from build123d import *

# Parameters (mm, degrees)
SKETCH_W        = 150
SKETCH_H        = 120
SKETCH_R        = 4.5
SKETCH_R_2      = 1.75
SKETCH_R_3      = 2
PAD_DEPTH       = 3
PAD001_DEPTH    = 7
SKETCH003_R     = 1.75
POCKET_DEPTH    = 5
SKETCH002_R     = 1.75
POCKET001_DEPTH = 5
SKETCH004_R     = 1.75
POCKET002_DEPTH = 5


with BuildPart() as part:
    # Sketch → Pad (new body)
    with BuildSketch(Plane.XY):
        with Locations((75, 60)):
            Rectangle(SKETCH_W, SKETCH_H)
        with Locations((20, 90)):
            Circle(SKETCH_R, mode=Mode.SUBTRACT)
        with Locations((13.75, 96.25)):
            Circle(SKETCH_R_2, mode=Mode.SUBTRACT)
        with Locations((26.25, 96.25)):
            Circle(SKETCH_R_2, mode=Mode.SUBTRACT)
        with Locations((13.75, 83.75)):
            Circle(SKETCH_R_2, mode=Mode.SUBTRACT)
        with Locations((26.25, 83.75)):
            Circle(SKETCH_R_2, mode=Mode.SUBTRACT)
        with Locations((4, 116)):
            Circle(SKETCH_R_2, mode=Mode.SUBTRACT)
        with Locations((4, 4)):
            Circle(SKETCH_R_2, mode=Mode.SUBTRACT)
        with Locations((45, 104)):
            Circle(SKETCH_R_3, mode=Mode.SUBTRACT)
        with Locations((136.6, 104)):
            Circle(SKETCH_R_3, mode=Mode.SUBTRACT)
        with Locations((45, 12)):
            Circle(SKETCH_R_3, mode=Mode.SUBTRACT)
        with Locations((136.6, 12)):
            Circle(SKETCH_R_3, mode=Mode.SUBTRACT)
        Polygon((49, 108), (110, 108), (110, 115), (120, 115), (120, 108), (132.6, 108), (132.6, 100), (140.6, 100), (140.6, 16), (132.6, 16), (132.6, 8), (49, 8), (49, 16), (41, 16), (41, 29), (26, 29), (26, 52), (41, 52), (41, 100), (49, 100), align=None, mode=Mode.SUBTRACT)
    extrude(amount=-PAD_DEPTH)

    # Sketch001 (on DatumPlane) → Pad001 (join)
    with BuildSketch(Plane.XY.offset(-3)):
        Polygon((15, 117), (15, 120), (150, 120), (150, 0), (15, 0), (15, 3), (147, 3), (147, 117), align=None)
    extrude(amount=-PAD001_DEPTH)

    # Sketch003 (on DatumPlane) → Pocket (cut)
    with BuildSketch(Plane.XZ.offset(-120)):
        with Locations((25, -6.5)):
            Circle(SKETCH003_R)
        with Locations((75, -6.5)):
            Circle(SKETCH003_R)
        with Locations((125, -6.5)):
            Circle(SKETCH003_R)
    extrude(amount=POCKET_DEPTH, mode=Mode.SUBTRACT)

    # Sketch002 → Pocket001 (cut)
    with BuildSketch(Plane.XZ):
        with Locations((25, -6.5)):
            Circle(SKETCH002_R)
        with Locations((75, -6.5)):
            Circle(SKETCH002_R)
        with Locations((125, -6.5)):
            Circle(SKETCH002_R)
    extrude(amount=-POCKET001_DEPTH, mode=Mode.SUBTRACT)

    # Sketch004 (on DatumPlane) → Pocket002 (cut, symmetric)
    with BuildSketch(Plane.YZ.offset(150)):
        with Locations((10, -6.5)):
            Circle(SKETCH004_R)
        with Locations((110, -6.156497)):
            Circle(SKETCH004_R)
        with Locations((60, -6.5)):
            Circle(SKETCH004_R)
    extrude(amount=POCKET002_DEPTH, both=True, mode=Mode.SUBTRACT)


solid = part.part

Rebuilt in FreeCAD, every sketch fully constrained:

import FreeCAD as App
import Part
import Sketcher

doc = App.newDocument("Part")
params = doc.addObject("Spreadsheet::Sheet", "Params")
for row, (alias, value) in enumerate([
    ("sketch1_diameter", "4 mm"),
    ("sketch1_diameter2", "9 mm"),
    ("sketch1_diameter3", "3.5 mm"),
    ("sketch1_width", "150 mm"),
    ("sketch1_width2", "61 mm"),
    ("pad1_length", "3 mm"),
    ("sketch2_width", "132 mm"),
    ("sketch2_width2", "135 mm"),
    ("sketch2_height", "3 mm"),
    ("sketch2_height2", "114 mm"),
    ("pad2_length", "7 mm"),
    ("sketch3_diameter", "3.5 mm"),
    ("pocket1_length", "5 mm"),
    ("sketch4_diameter", "3.5 mm"),
    ("pocket2_length", "5 mm"),
    ("sketch5_diameter", "3.5 mm"),
    ("pocket3_length", "10 mm"),
], start=1):
    params.set(f"A{row}", alias)
    params.set(f"B{row}", "=" + value)
    params.setAlias(f"B{row}", alias)

body = doc.addObject("PartDesign::Body", "Body")

# Sketch on XY plane
sketch1 = doc.addObject("Sketcher::SketchObject", "Sketch")
body.addObject(sketch1)
sketch1.AttachmentSupport = (doc.XY_Plane, [""])
sketch1.MapMode = "FlatFace"
sketch1.addGeometry(Part.LineSegment(App.Vector(0, 120, 0), App.Vector(0, 0, 0)), False)
sketch1.addGeometry(Part.LineSegment(App.Vector(0, 0, 0), App.Vector(150, 0, 0)), False)
sketch1.addGeometry(Part.LineSegment(App.Vector(150, 0, 0), App.Vector(150, 120, 0)), False)
sketch1.addGeometry(Part.LineSegment(App.Vector(150, 120, 0), App.Vector(0, 120, 0)), False)
sketch1.addGeometry(Part.Circle(App.Vector(4, 4, 0), App.Vector(0, 0, 1), 1.8), False)
sketch1.addGeometry(Part.Circle(App.Vector(45, 12, 0), App.Vector(0, 0, 1), 2), False)
sketch1.addGeometry(Part.Circle(App.Vector(136.6, 12, 0), App.Vector(0, 0, 1), 2), False)
sketch1.addGeometry(Part.Circle(App.Vector(13.8, 83.8, 0), App.Vector(0, 0, 1), 1.8), False)
sketch1.addGeometry(Part.Circle(App.Vector(26.2, 83.8, 0), App.Vector(0, 0, 1), 1.8), False)
sketch1.addGeometry(Part.Circle(App.Vector(13.8, 96.2, 0), App.Vector(0, 0, 1), 1.8), False)
sketch1.addGeometry(Part.Circle(App.Vector(20, 90, 0), App.Vector(0, 0, 1), 4.5), False)
sketch1.addGeometry(Part.Circle(App.Vector(26.2, 96.2, 0), App.Vector(0, 0, 1), 1.8), False)
sketch1.addGeometry(Part.Circle(App.Vector(4, 116, 0), App.Vector(0, 0, 1), 1.8), False)
sketch1.addGeometry(Part.Circle(App.Vector(45, 104, 0), App.Vector(0, 0, 1), 2), False)
sketch1.addGeometry(Part.LineSegment(App.Vector(49, 100, 0), App.Vector(49, 108, 0)), False)
sketch1.addGeometry(Part.LineSegment(App.Vector(49, 108, 0), App.Vector(110, 108, 0)), False)
sketch1.addGeometry(Part.LineSegment(App.Vector(110, 108, 0), App.Vector(110, 115, 0)), False)
sketch1.addGeometry(Part.LineSegment(App.Vector(110, 115, 0), App.Vector(120, 115, 0)), False)
sketch1.addGeometry(Part.LineSegment(App.Vector(120, 115, 0), App.Vector(120, 108, 0)), False)
sketch1.addGeometry(Part.LineSegment(App.Vector(120, 108, 0), App.Vector(132.6, 108, 0)), False)
sketch1.addGeometry(Part.LineSegment(App.Vector(132.6, 108, 0), App.Vector(132.6, 100, 0)), False)
sketch1.addGeometry(Part.LineSegment(App.Vector(132.6, 100, 0), App.Vector(140.6, 100, 0)), False)
sketch1.addGeometry(Part.LineSegment(App.Vector(140.6, 100, 0), App.Vector(140.6, 16, 0)), False)
sketch1.addGeometry(Part.LineSegment(App.Vector(140.6, 16, 0), App.Vector(132.6, 16, 0)), False)
sketch1.addGeometry(Part.LineSegment(App.Vector(132.6, 16, 0), App.Vector(132.6, 8, 0)), False)
sketch1.addGeometry(Part.LineSegment(App.Vector(132.6, 8, 0), App.Vector(49, 8, 0)), False)
sketch1.addGeometry(Part.LineSegment(App.Vector(49, 8, 0), App.Vector(49, 16, 0)), False)
sketch1.addGeometry(Part.LineSegment(App.Vector(49, 16, 0), App.Vector(41, 16, 0)), False)
sketch1.addGeometry(Part.LineSegment(App.Vector(41, 16, 0), App.Vector(41, 29, 0)), False)
sketch1.addGeometry(Part.LineSegment(App.Vector(41, 29, 0), App.Vector(26, 29, 0)), False)
sketch1.addGeometry(Part.LineSegment(App.Vector(26, 29, 0), App.Vector(26, 52, 0)), False)
sketch1.addGeometry(Part.LineSegment(App.Vector(26, 52, 0), App.Vector(41, 52, 0)), False)
sketch1.addGeometry(Part.LineSegment(App.Vector(41, 52, 0), App.Vector(41, 100, 0)), False)
sketch1.addGeometry(Part.LineSegment(App.Vector(41, 100, 0), App.Vector(49, 100, 0)), False)
sketch1.addGeometry(Part.Circle(App.Vector(136.6, 104, 0), App.Vector(0, 0, 1), 2), False)
sketch1.addConstraint(Sketcher.Constraint("Coincident", 0, 2, 1, 1))
sketch1.addConstraint(Sketcher.Constraint("Coincident", 1, 2, 2, 1))
sketch1.addConstraint(Sketcher.Constraint("Coincident", 2, 2, 3, 1))
sketch1.addConstraint(Sketcher.Constraint("Coincident", 3, 2, 0, 1))
sketch1.addConstraint(Sketcher.Constraint("Coincident", 14, 2, 15, 1))
sketch1.addConstraint(Sketcher.Constraint("Coincident", 15, 2, 16, 1))
sketch1.addConstraint(Sketcher.Constraint("Coincident", 16, 2, 17, 1))
sketch1.addConstraint(Sketcher.Constraint("Coincident", 17, 2, 18, 1))
sketch1.addConstraint(Sketcher.Constraint("Coincident", 18, 2, 19, 1))
sketch1.addConstraint(Sketcher.Constraint("Coincident", 19, 2, 20, 1))
sketch1.addConstraint(Sketcher.Constraint("Coincident", 20, 2, 21, 1))
sketch1.addConstraint(Sketcher.Constraint("Coincident", 21, 2, 22, 1))
sketch1.addConstraint(Sketcher.Constraint("Coincident", 22, 2, 23, 1))
sketch1.addConstraint(Sketcher.Constraint("Coincident", 23, 2, 24, 1))
sketch1.addConstraint(Sketcher.Constraint("Coincident", 24, 2, 25, 1))
sketch1.addConstraint(Sketcher.Constraint("Coincident", 25, 2, 26, 1))
sketch1.addConstraint(Sketcher.Constraint("Coincident", 26, 2, 27, 1))
sketch1.addConstraint(Sketcher.Constraint("Coincident", 27, 2, 28, 1))
sketch1.addConstraint(Sketcher.Constraint("Coincident", 28, 2, 29, 1))
sketch1.addConstraint(Sketcher.Constraint("Coincident", 29, 2, 30, 1))
sketch1.addConstraint(Sketcher.Constraint("Coincident", 30, 2, 31, 1))
sketch1.addConstraint(Sketcher.Constraint("Coincident", 31, 2, 32, 1))
sketch1.addConstraint(Sketcher.Constraint("Coincident", 32, 2, 33, 1))
sketch1.addConstraint(Sketcher.Constraint("Coincident", 33, 2, 14, 1))
sketch1.addConstraint(Sketcher.Constraint("Vertical", 0))
sketch1.addConstraint(Sketcher.Constraint("Horizontal", 1))
sketch1.addConstraint(Sketcher.Constraint("Vertical", 2))
sketch1.addConstraint(Sketcher.Constraint("Horizontal", 3))
sketch1.addConstraint(Sketcher.Constraint("Vertical", 14))
sketch1.addConstraint(Sketcher.Constraint("Horizontal", 15))
sketch1.addConstraint(Sketcher.Constraint("Vertical", 16))
sketch1.addConstraint(Sketcher.Constraint("Horizontal", 17))
sketch1.addConstraint(Sketcher.Constraint("Vertical", 18))
sketch1.addConstraint(Sketcher.Constraint("Horizontal", 19))
sketch1.addConstraint(Sketcher.Constraint("Vertical", 20))
sketch1.addConstraint(Sketcher.Constraint("Horizontal", 21))
sketch1.addConstraint(Sketcher.Constraint("Vertical", 22))
sketch1.addConstraint(Sketcher.Constraint("Horizontal", 23))
sketch1.addConstraint(Sketcher.Constraint("Vertical", 24))
sketch1.addConstraint(Sketcher.Constraint("Horizontal", 25))
sketch1.addConstraint(Sketcher.Constraint("Vertical", 26))
sketch1.addConstraint(Sketcher.Constraint("Horizontal", 27))
sketch1.addConstraint(Sketcher.Constraint("Vertical", 28))
sketch1.addConstraint(Sketcher.Constraint("Horizontal", 29))
sketch1.addConstraint(Sketcher.Constraint("Vertical", 30))
sketch1.addConstraint(Sketcher.Constraint("Horizontal", 31))
sketch1.addConstraint(Sketcher.Constraint("Vertical", 32))
sketch1.addConstraint(Sketcher.Constraint("Horizontal", 33))
sketch1.addConstraint(Sketcher.Constraint("Coincident", 0, 2, -1, 1))
sketch1.addConstraint(Sketcher.Constraint("Equal", 5, 6))
sketch1.addConstraint(Sketcher.Constraint("Equal", 4, 7))
sketch1.addConstraint(Sketcher.Constraint("Equal", 7, 8))
sketch1.addConstraint(Sketcher.Constraint("Equal", 8, 9))
sketch1.addConstraint(Sketcher.Constraint("Equal", 9, 11))
sketch1.addConstraint(Sketcher.Constraint("Equal", 11, 12))
sketch1.addConstraint(Sketcher.Constraint("Equal", 6, 13))
sketch1.addConstraint(Sketcher.Constraint("Equal", 13, 34))
sketch1.addConstraint(Sketcher.Constraint("Horizontal", 5, 3, 6, 3))
sketch1.addConstraint(Sketcher.Constraint("Horizontal", 7, 3, 8, 3))
sketch1.addConstraint(Sketcher.Constraint("Horizontal", 9, 3, 11, 3))
sketch1.addConstraint(Sketcher.Constraint("Horizontal", 13, 3, 34, 3))
sketch1.addConstraint(Sketcher.Constraint("Horizontal", 15, 2, 18, 2))
sketch1.addConstraint(Sketcher.Constraint("Horizontal", 23, 2, 26, 2))
sketch1.addConstraint(Sketcher.Constraint("Horizontal", 21, 2, 32, 2))
sketch1.addConstraint(Sketcher.Constraint("Vertical", 7, 3, 9, 3))
sketch1.addConstraint(Sketcher.Constraint("Vertical", 8, 3, 11, 3))
sketch1.addConstraint(Sketcher.Constraint("Vertical", 4, 3, 12, 3))
sketch1.addConstraint(Sketcher.Constraint("Vertical", 5, 3, 13, 3))
sketch1.addConstraint(Sketcher.Constraint("Vertical", 6, 3, 34, 3))
sketch1.addConstraint(Sketcher.Constraint("Vertical", 20, 2, 23, 2))
sketch1.addConstraint(Sketcher.Constraint("Vertical", 14, 2, 25, 2))
sketch1.addConstraint(Sketcher.Constraint("Vertical", 28, 2, 31, 2))
sketch1.addConstraint(Sketcher.Constraint("Equal", 23, 27))
sketch1.addConstraint(Sketcher.Constraint("Equal", 33, 14))
sketch1.addConstraint(Sketcher.Constraint("Equal", 20, 24))
sketch1.addConstraint(Sketcher.Constraint("Diameter", 5, 4.0))
sketch1.addConstraint(Sketcher.Constraint("Diameter", 10, 9.0))
sketch1.addConstraint(Sketcher.Constraint("Diameter", 4, 3.5))
sketch1.addConstraint(Sketcher.Constraint("DistanceX", 1, 1, 1, 2, 150.0))
sketch1.addConstraint(Sketcher.Constraint("DistanceX", 15, 1, 15, 2, 61.0))
sketch1.addConstraint(Sketcher.Constraint("DistanceX", 17, 1, 17, 2, 10.0))
sketch1.addConstraint(Sketcher.Constraint("DistanceX", 21, 1, 21, 2, 8.0))
sketch1.addConstraint(Sketcher.Constraint("DistanceX", 29, 2, 29, 1, 15.0))
sketch1.addConstraint(Sketcher.Constraint("DistanceY", 0, 2, 0, 1, 120.0))
sketch1.addConstraint(Sketcher.Constraint("DistanceY", 16, 1, 16, 2, 7.0))
sketch1.addConstraint(Sketcher.Constraint("DistanceY", 22, 2, 22, 1, 84.0))
sketch1.addConstraint(Sketcher.Constraint("DistanceY", 28, 1, 28, 2, 13.0))
sketch1.addConstraint(Sketcher.Constraint("DistanceY", 30, 1, 30, 2, 23.0))
sketch1.addConstraint(Sketcher.Constraint("DistanceX", 19, 1, 19, 2, 12.6))
sketch1.addConstraint(Sketcher.Constraint("DistanceX", -1, 1, 4, 3, 4.0))
sketch1.addConstraint(Sketcher.Constraint("DistanceY", -1, 1, 4, 3, 4.0))
sketch1.addConstraint(Sketcher.Constraint("DistanceX", -1, 1, 5, 3, 45.0))
sketch1.addConstraint(Sketcher.Constraint("DistanceY", -1, 1, 5, 3, 12.0))
sketch1.addConstraint(Sketcher.Constraint("DistanceX", -1, 1, 10, 3, 20.0))
sketch1.addConstraint(Sketcher.Constraint("DistanceY", -1, 1, 10, 3, 90.0))
sketch1.addConstraint(Sketcher.Constraint("DistanceY", -1, 1, 12, 3, 116.0))
sketch1.addConstraint(Sketcher.Constraint("DistanceY", -1, 1, 13, 3, 104.0))
sketch1.addConstraint(Sketcher.Constraint("DistanceX", -1, 1, 14, 2, 49.0))
sketch1.addConstraint(Sketcher.Constraint("DistanceY", -1, 1, 14, 2, 108.0))
sketch1.addConstraint(Sketcher.Constraint("DistanceX", 19, 2, 34, 3, 4.0))
sketch1.addConstraint(Sketcher.Constraint("DistanceX", 7, 3, 8, 3, 12.5))
sketch1.addConstraint(Sketcher.Constraint("DistanceY", 7, 3, 9, 3, 12.5))
sketch1.addConstraint(Sketcher.Constraint("DistanceX", -1, 1, 7, 3, 13.75))
sketch1.addConstraint(Sketcher.Constraint("DistanceY", -1, 1, 7, 3, 83.75))
sketch1.setExpression("Constraints[75]", "Params.sketch1_diameter")
sketch1.setExpression("Constraints[76]", "Params.sketch1_diameter2")
sketch1.setExpression("Constraints[77]", "Params.sketch1_diameter3")
sketch1.setExpression("Constraints[78]", "Params.sketch1_width")
sketch1.setExpression("Constraints[79]", "Params.sketch1_width2")
pad1 = doc.addObject("PartDesign::Pad", "Pad")
body.addObject(pad1)
pad1.Profile = sketch1
pad1.setExpression("Length", "Params.pad1_length")
pad1.Reversed = True

# Sketch on XY plane
sketch2 = doc.addObject("Sketcher::SketchObject", "Sketch001")
body.addObject(sketch2)
sketch2.AttachmentSupport = (doc.XY_Plane, [""])
sketch2.MapMode = "FlatFace"
sketch2.AttachmentOffset = App.Placement(App.Vector(0, 0, -3), App.Rotation())
sketch2.addGeometry(Part.LineSegment(App.Vector(15, 120, 0), App.Vector(15, 117, 0)), False)
sketch2.addGeometry(Part.LineSegment(App.Vector(15, 117, 0), App.Vector(147, 117, 0)), False)
sketch2.addGeometry(Part.LineSegment(App.Vector(147, 117, 0), App.Vector(147, 3, 0)), False)
sketch2.addGeometry(Part.LineSegment(App.Vector(147, 3, 0), App.Vector(15, 3, 0)), False)
sketch2.addGeometry(Part.LineSegment(App.Vector(15, 3, 0), App.Vector(15, 0, 0)), False)
sketch2.addGeometry(Part.LineSegment(App.Vector(15, 0, 0), App.Vector(150, 0, 0)), False)
sketch2.addGeometry(Part.LineSegment(App.Vector(150, 0, 0), App.Vector(150, 120, 0)), False)
sketch2.addGeometry(Part.LineSegment(App.Vector(150, 120, 0), App.Vector(15, 120, 0)), False)
sketch2.addConstraint(Sketcher.Constraint("Coincident", 0, 2, 1, 1))
sketch2.addConstraint(Sketcher.Constraint("Coincident", 1, 2, 2, 1))
sketch2.addConstraint(Sketcher.Constraint("Coincident", 2, 2, 3, 1))
sketch2.addConstraint(Sketcher.Constraint("Coincident", 3, 2, 4, 1))
sketch2.addConstraint(Sketcher.Constraint("Coincident", 4, 2, 5, 1))
sketch2.addConstraint(Sketcher.Constraint("Coincident", 5, 2, 6, 1))
sketch2.addConstraint(Sketcher.Constraint("Coincident", 6, 2, 7, 1))
sketch2.addConstraint(Sketcher.Constraint("Coincident", 7, 2, 0, 1))
sketch2.addConstraint(Sketcher.Constraint("Vertical", 0))
sketch2.addConstraint(Sketcher.Constraint("Horizontal", 1))
sketch2.addConstraint(Sketcher.Constraint("Vertical", 2))
sketch2.addConstraint(Sketcher.Constraint("Horizontal", 3))
sketch2.addConstraint(Sketcher.Constraint("Vertical", 4))
sketch2.addConstraint(Sketcher.Constraint("Horizontal", 5))
sketch2.addConstraint(Sketcher.Constraint("Vertical", 6))
sketch2.addConstraint(Sketcher.Constraint("Horizontal", 7))
sketch2.addConstraint(Sketcher.Constraint("PointOnObject", 4, 2, -1))
sketch2.addConstraint(Sketcher.Constraint("Vertical", 0, 2, 3, 2))
sketch2.addConstraint(Sketcher.Constraint("Equal", 0, 4))
sketch2.addConstraint(Sketcher.Constraint("DistanceX", 1, 1, 1, 2, 132.0))
sketch2.addConstraint(Sketcher.Constraint("DistanceX", 5, 1, 5, 2, 135.0))
sketch2.addConstraint(Sketcher.Constraint("DistanceY", 0, 2, 0, 1, 3.0))
sketch2.addConstraint(Sketcher.Constraint("DistanceY", 2, 2, 2, 1, 114.0))
sketch2.addConstraint(Sketcher.Constraint("DistanceX", -1, 1, 0, 2, 15.0))
sketch2.setExpression("Constraints[19]", "Params.sketch2_width")
sketch2.setExpression("Constraints[20]", "Params.sketch2_width2")
sketch2.setExpression("Constraints[21]", "Params.sketch2_height")
sketch2.setExpression("Constraints[22]", "Params.sketch2_height2")
pad2 = doc.addObject("PartDesign::Pad", "Pad001")
body.addObject(pad2)
pad2.Profile = sketch2
pad2.setExpression("Length", "Params.pad2_length")
pad2.Reversed = True

# Sketch on XZ plane
sketch3 = doc.addObject("Sketcher::SketchObject", "Sketch002")
body.addObject(sketch3)
sketch3.AttachmentSupport = (doc.XZ_Plane, [""])
sketch3.MapMode = "FlatFace"
sketch3.AttachmentOffset = App.Placement(App.Vector(0, 0, -120), App.Rotation())
sketch3.addGeometry(Part.Circle(App.Vector(25, -6.5, 0), App.Vector(0, 0, 1), 1.8), False)
sketch3.addGeometry(Part.Circle(App.Vector(75, -6.5, 0), App.Vector(0, 0, 1), 1.8), False)
sketch3.addGeometry(Part.Circle(App.Vector(125, -6.5, 0), App.Vector(0, 0, 1), 1.8), False)
sketch3.addConstraint(Sketcher.Constraint("Equal", 0, 1))
sketch3.addConstraint(Sketcher.Constraint("Equal", 1, 2))
sketch3.addConstraint(Sketcher.Constraint("Horizontal", 0, 3, 1, 3))
sketch3.addConstraint(Sketcher.Constraint("Horizontal", 1, 3, 2, 3))
sketch3.addConstraint(Sketcher.Constraint("Diameter", 0, 3.5))
sketch3.addConstraint(Sketcher.Constraint("DistanceX", -1, 1, 0, 3, 25.0))
sketch3.addConstraint(Sketcher.Constraint("DistanceX", -1, 1, 1, 3, 75.0))
sketch3.addConstraint(Sketcher.Constraint("DistanceX", -1, 1, 2, 3, 125.0))
sketch3.addConstraint(Sketcher.Constraint("DistanceY", 0, 3, -1, 1, 6.5))
sketch3.setExpression("Constraints[4]", "Params.sketch3_diameter")
pocket1 = doc.addObject("PartDesign::Pocket", "Pocket")
body.addObject(pocket1)
pocket1.Profile = sketch3
pocket1.setExpression("Length", "Params.pocket1_length")
pocket1.Reversed = True

# Sketch on XZ plane
sketch4 = doc.addObject("Sketcher::SketchObject", "Sketch003")
body.addObject(sketch4)
sketch4.AttachmentSupport = (doc.XZ_Plane, [""])
sketch4.MapMode = "FlatFace"
sketch4.addGeometry(Part.Circle(App.Vector(25, -6.5, 0), App.Vector(0, 0, 1), 1.8), False)
sketch4.addGeometry(Part.Circle(App.Vector(75, -6.5, 0), App.Vector(0, 0, 1), 1.8), False)
sketch4.addGeometry(Part.Circle(App.Vector(125, -6.5, 0), App.Vector(0, 0, 1), 1.8), False)
sketch4.addConstraint(Sketcher.Constraint("Equal", 0, 1))
sketch4.addConstraint(Sketcher.Constraint("Equal", 1, 2))
sketch4.addConstraint(Sketcher.Constraint("Horizontal", 0, 3, 1, 3))
sketch4.addConstraint(Sketcher.Constraint("Horizontal", 1, 3, 2, 3))
sketch4.addConstraint(Sketcher.Constraint("Diameter", 0, 3.5))
sketch4.addConstraint(Sketcher.Constraint("DistanceX", -1, 1, 0, 3, 25.0))
sketch4.addConstraint(Sketcher.Constraint("DistanceX", -1, 1, 1, 3, 75.0))
sketch4.addConstraint(Sketcher.Constraint("DistanceX", -1, 1, 2, 3, 125.0))
sketch4.addConstraint(Sketcher.Constraint("DistanceY", 0, 3, -1, 1, 6.5))
sketch4.setExpression("Constraints[4]", "Params.sketch4_diameter")
pocket2 = doc.addObject("PartDesign::Pocket", "Pocket001")
body.addObject(pocket2)
pocket2.Profile = sketch4
pocket2.setExpression("Length", "Params.pocket2_length")

# Sketch on YZ plane
sketch5 = doc.addObject("Sketcher::SketchObject", "Sketch004")
body.addObject(sketch5)
sketch5.AttachmentSupport = (doc.YZ_Plane, [""])
sketch5.MapMode = "FlatFace"
sketch5.AttachmentOffset = App.Placement(App.Vector(0, 0, 150), App.Rotation())
sketch5.addGeometry(Part.Circle(App.Vector(10, -6.5, 0), App.Vector(0, 0, 1), 1.8), False)
sketch5.addGeometry(Part.Circle(App.Vector(110, -6.2, 0), App.Vector(0, 0, 1), 1.8), False)
sketch5.addGeometry(Part.Circle(App.Vector(60, -6.5, 0), App.Vector(0, 0, 1), 1.8), False)
sketch5.addConstraint(Sketcher.Constraint("Equal", 0, 1))
sketch5.addConstraint(Sketcher.Constraint("Equal", 1, 2))
sketch5.addConstraint(Sketcher.Constraint("Horizontal", 0, 3, 2, 3))
sketch5.addConstraint(Sketcher.Constraint("Diameter", 0, 3.5))
sketch5.addConstraint(Sketcher.Constraint("DistanceX", -1, 1, 0, 3, 10.0))
sketch5.addConstraint(Sketcher.Constraint("DistanceX", -1, 1, 1, 3, 110.0))
sketch5.addConstraint(Sketcher.Constraint("DistanceX", -1, 1, 2, 3, 60.0))
sketch5.addConstraint(Sketcher.Constraint("DistanceY", 0, 3, -1, 1, 6.5))
sketch5.addConstraint(Sketcher.Constraint("DistanceY", 1, 3, -1, 1, 6.156497))
sketch5.setExpression("Constraints[3]", "Params.sketch5_diameter")
pocket3 = doc.addObject("PartDesign::Pocket", "Pocket002")
body.addObject(pocket3)
pocket3.Profile = sketch5
pocket3.setExpression("Length", "Params.pocket3_length")
pocket3.Midplane = True

doc.recompute()
